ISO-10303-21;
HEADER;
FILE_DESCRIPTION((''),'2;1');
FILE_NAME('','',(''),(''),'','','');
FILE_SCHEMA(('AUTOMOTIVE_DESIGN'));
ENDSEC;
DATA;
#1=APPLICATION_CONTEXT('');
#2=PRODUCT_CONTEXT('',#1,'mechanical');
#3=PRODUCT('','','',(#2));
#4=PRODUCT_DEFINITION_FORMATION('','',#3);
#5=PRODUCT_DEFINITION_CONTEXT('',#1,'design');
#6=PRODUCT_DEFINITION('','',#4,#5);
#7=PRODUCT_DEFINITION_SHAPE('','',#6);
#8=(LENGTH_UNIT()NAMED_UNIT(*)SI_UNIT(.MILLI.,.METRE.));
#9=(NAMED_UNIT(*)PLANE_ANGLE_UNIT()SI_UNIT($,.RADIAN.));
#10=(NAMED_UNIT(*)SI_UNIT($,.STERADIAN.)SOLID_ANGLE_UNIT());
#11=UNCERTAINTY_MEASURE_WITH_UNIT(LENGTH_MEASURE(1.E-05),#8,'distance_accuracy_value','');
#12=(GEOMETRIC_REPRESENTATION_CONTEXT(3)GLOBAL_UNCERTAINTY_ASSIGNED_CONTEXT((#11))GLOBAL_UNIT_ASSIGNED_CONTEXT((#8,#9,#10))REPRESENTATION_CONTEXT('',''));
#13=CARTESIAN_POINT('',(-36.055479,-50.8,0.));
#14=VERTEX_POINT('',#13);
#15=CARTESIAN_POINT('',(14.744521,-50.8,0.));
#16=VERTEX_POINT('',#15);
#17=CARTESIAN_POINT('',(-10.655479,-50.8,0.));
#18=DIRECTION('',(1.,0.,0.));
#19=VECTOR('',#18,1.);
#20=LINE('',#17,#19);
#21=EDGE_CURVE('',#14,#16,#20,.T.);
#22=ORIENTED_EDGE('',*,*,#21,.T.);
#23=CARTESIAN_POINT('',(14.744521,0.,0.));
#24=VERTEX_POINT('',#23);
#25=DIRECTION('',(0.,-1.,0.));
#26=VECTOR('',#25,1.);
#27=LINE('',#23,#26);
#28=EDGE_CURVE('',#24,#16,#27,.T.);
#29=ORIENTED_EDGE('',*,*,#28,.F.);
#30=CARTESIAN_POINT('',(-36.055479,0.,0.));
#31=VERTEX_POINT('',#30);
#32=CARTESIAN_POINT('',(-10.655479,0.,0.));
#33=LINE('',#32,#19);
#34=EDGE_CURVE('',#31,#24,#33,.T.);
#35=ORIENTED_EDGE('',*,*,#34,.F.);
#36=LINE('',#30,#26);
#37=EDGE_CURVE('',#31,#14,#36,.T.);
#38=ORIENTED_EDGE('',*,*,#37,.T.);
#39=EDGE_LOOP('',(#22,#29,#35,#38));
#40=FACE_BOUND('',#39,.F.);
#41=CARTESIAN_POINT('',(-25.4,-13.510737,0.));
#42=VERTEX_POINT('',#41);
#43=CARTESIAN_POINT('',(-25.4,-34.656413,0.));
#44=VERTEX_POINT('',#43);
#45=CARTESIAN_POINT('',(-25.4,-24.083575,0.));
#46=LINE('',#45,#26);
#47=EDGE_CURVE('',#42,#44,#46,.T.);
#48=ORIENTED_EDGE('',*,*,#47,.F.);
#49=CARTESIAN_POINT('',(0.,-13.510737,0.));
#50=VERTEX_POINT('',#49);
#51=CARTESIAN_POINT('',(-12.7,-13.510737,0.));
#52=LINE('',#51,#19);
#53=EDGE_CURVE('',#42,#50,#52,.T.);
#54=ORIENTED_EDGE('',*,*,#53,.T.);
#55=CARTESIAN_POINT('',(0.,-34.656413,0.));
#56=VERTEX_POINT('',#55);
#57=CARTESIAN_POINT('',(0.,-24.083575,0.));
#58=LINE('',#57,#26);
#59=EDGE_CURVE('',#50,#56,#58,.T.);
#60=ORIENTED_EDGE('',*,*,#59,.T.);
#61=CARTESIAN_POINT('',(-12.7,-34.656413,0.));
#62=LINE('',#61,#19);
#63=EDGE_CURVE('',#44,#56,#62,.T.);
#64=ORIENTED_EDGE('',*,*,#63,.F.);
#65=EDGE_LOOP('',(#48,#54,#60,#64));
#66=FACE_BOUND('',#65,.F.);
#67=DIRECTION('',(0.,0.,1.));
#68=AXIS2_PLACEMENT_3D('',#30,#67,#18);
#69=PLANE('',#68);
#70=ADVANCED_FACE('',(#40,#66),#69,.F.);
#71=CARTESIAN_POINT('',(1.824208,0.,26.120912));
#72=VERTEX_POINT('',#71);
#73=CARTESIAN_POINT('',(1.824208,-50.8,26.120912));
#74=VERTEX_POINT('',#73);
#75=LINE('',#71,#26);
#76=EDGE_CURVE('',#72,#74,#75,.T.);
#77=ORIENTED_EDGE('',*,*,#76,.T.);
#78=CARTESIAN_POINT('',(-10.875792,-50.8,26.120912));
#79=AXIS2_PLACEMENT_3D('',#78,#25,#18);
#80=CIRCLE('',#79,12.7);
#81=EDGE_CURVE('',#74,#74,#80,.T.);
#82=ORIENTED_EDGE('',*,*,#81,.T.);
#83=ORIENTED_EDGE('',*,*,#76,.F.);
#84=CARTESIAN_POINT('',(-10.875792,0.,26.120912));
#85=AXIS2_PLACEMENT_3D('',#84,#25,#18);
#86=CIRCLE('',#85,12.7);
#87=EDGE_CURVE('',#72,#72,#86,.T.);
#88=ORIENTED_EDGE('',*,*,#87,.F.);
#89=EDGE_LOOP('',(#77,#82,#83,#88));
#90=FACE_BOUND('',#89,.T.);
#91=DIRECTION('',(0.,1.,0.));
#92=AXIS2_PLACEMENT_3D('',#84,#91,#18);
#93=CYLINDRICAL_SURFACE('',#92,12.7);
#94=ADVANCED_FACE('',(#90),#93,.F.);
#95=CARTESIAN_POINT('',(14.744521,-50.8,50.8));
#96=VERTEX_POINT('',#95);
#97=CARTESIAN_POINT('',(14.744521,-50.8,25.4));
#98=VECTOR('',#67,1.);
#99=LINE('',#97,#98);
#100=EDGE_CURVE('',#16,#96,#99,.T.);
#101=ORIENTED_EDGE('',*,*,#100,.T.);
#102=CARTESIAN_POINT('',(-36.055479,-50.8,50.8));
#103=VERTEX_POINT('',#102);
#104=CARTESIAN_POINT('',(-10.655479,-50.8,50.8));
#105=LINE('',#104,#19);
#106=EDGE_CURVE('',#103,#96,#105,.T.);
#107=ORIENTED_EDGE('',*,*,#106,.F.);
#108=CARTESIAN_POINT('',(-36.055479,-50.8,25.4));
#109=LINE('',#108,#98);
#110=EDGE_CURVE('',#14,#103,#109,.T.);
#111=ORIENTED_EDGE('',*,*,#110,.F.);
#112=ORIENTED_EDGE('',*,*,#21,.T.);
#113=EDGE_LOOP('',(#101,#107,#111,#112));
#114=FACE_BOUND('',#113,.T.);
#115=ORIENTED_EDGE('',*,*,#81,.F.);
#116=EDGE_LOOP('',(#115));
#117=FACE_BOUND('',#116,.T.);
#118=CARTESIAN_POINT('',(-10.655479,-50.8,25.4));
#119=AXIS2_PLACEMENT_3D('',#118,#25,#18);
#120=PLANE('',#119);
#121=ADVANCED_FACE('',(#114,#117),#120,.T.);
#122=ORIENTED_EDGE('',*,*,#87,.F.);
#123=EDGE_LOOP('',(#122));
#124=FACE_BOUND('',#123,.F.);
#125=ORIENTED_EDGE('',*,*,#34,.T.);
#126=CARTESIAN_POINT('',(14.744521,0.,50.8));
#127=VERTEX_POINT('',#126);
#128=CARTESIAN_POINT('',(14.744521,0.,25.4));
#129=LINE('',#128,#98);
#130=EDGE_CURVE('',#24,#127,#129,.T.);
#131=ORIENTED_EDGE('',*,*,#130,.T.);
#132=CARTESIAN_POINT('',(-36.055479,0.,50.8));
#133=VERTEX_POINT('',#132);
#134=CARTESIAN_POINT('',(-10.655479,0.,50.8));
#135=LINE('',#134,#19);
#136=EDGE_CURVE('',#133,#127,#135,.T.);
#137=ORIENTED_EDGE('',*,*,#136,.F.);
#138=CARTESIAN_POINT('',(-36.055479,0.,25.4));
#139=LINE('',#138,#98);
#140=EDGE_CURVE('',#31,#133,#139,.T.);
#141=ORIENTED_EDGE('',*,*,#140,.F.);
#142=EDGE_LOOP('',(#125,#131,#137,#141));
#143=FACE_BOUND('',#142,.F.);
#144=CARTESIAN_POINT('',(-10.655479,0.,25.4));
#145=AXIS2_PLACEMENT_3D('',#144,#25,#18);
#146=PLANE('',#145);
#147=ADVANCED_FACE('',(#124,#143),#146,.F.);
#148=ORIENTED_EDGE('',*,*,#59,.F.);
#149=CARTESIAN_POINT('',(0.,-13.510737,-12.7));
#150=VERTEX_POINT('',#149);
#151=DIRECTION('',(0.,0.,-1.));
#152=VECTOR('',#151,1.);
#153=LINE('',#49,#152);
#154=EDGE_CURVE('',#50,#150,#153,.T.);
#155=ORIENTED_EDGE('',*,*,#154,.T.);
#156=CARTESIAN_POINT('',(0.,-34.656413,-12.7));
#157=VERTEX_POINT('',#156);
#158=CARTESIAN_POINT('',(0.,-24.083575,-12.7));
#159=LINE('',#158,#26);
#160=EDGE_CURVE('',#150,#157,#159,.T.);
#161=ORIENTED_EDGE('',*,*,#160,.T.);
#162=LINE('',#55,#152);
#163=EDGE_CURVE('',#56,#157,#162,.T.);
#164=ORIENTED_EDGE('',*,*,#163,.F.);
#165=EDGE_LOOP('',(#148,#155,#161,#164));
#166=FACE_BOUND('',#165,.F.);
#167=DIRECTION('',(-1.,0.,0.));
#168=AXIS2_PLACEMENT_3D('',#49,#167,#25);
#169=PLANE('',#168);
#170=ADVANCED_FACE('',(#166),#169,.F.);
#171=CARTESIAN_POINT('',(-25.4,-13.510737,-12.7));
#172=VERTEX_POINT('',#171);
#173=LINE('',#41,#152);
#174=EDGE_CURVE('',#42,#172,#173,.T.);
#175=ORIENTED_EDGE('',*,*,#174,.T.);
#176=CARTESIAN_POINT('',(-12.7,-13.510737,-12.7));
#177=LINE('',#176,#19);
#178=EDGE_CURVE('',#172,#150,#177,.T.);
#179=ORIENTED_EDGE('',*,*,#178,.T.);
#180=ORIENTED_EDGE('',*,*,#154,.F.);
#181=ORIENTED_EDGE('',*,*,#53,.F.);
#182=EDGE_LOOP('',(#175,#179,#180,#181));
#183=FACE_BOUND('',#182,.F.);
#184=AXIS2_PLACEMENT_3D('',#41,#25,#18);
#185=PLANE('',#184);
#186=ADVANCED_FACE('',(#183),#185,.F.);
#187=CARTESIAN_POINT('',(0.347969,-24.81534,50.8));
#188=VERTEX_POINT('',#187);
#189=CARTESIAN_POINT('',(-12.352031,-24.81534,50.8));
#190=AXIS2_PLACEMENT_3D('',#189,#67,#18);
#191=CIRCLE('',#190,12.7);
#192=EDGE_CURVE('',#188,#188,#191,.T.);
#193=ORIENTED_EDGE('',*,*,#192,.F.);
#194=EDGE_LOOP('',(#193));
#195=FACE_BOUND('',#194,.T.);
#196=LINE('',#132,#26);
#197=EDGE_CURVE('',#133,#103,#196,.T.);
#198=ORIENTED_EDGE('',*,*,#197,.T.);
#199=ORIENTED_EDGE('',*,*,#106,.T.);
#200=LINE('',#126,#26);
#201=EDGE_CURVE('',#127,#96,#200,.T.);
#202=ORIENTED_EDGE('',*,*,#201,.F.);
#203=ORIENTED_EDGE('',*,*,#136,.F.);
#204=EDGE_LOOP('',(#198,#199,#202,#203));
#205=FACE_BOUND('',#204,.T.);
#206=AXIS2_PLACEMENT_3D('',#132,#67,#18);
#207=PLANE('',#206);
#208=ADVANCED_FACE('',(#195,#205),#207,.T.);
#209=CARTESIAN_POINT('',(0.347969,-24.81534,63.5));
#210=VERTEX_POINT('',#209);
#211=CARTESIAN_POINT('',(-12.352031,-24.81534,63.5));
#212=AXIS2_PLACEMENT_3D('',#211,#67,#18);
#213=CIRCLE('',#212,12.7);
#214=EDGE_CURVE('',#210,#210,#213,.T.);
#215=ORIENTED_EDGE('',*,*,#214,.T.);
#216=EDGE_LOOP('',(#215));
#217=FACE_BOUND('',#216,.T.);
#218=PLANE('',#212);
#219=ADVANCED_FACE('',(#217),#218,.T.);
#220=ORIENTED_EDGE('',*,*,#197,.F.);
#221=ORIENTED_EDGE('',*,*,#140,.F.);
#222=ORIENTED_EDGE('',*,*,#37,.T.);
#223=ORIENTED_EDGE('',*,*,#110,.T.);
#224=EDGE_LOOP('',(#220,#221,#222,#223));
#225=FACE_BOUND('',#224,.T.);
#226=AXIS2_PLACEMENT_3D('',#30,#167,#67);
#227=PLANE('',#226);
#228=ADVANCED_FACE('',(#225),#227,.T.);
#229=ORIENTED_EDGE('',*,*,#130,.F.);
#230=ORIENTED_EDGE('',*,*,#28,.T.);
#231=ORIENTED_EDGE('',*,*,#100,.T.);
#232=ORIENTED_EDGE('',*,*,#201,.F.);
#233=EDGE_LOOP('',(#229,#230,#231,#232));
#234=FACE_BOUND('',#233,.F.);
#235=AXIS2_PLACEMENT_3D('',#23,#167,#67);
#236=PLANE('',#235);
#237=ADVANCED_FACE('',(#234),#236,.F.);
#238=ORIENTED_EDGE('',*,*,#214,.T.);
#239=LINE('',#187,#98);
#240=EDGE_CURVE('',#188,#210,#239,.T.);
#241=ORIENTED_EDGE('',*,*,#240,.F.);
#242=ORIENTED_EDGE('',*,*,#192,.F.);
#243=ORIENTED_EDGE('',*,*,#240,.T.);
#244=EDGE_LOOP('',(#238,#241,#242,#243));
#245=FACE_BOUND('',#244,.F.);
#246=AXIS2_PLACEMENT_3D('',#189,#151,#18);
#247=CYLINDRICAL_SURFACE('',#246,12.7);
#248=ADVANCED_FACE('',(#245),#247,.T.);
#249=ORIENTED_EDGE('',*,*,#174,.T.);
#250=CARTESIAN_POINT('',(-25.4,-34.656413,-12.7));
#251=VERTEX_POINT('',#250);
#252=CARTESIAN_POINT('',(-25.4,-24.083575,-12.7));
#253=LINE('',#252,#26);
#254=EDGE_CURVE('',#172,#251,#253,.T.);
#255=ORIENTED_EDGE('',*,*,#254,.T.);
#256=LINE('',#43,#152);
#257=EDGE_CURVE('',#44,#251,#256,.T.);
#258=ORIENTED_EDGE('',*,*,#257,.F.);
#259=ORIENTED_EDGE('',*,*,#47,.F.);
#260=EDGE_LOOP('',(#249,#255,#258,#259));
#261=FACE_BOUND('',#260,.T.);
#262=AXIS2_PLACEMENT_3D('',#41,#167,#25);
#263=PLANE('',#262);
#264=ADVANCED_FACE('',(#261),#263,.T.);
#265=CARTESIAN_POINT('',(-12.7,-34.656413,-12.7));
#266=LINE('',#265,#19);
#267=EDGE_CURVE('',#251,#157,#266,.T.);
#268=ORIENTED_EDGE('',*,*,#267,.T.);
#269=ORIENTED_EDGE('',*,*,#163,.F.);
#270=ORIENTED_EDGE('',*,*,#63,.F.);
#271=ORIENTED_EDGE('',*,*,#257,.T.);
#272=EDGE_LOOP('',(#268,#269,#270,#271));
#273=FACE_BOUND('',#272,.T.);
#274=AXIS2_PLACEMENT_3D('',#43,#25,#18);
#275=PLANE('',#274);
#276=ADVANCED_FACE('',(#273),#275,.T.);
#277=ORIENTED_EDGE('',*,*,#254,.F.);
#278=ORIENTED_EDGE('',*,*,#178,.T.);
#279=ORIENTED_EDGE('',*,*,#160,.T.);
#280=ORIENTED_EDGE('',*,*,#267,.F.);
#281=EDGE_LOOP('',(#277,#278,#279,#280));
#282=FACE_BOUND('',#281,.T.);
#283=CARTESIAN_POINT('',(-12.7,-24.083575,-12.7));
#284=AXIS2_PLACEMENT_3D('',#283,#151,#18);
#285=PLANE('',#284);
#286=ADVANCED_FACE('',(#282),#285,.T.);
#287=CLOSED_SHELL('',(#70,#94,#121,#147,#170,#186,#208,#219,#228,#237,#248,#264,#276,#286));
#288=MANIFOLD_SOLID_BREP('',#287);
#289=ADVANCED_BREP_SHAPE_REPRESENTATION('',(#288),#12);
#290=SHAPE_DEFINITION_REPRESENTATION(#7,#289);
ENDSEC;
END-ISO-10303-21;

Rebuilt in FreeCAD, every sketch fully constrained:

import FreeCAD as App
import Part
import Sketcher
Q = App.Units.Quantity


def add_polygon(sketch, points):
    """Adds a closed chain of lines whose ends are joined by coincident constraints."""
    first, n = sketch.GeometryCount, len(points)
    for a, b in zip(points, points[1:] + points[:1]):
        sketch.addGeometry(Part.LineSegment(App.Vector(*a, 0), App.Vector(*b, 0)), False)
    for i in range(n):
        sketch.addConstraint(Sketcher.Constraint("Coincident", first + i, 2, first + (i + 1) % n, 1))

doc = App.newDocument("Part")
params = doc.addObject("Spreadsheet::Sheet", "Params")
for row, (alias, value) in enumerate([
    ("sketch1_diameter", "1 in"),
    ("sketch1_width", "2 in"),
    ("pad1_length", "2 in"),
    ("sketch2_diameter", "1 in"),
    ("pad2_length", "0.5 in"),
    ("sketch3_width", "1 in"),
    ("pad3_length", "0.5 in"),
], start=1):
    params.set(f"A{row}", alias)
    params.set(f"B{row}", "=" + value)
    params.setAlias(f"B{row}", alias)

body = doc.addObject("PartDesign::Body", "Body")

sketch1 = doc.addObject("Sketcher::SketchObject", "Sketch")
body.addObject(sketch1)
sketch1.AttachmentSupport = (doc.XZ_Plane, [""])
sketch1.MapMode = "FlatFace"
add_polygon(sketch1, [(-36, 51), (-36, 0), (15, 0), (15, 51)])
sketch1.addGeometry(Part.Circle(App.Vector(-11, 26, 0), App.Vector(0, 0, 1), 13), False)
sketch1.addConstraint([
    Sketcher.Constraint("Vertical", 0),
    Sketcher.Constraint("Horizontal", 1),
    Sketcher.Constraint("Vertical", 2),
    Sketcher.Constraint("Horizontal", 3),
    Sketcher.Constraint("PointOnObject", 0, 2, -1),
    Sketcher.Constraint("Equal", 3, 0),
    Sketcher.Constraint("Diameter", 4, Q("1 in")),
    Sketcher.Constraint("DistanceX", 1, 1, 1, 2, Q("2 in")),
    Sketcher.Constraint("DistanceX", 0, 2, -1, 1, 36.055479),
    Sketcher.Constraint("DistanceX", 4, 3, -1, 1, 10.875792),
    Sketcher.Constraint("DistanceY", -1, 1, 4, 3, 26.120912),
])
sketch1.setExpression("Constraints[10]", "Params.sketch1_diameter")
sketch1.setExpression("Constraints[11]", "Params.sketch1_width")
pad1 = doc.addObject("PartDesign::Pad", "Pad")
body.addObject(pad1)
pad1.Profile = sketch1
pad1.setExpression("Length", "Params.pad1_length")

sketch2 = doc.addObject("Sketcher::SketchObject", "Sketch001")
body.addObject(sketch2)
sketch2.AttachmentSupport = (doc.XY_Plane, [""])
sketch2.MapMode = "FlatFace"
sketch2.AttachmentOffset = App.Placement(App.Vector(0, 0, 2 * 25.4), App.Rotation())
sketch2.addGeometry(Part.Circle(App.Vector(-12, -25, 0), App.Vector(0, 0, 1), 13), False)
sketch2.addConstraint([
    Sketcher.Constraint("Diameter", 0, Q("1 in")),
    Sketcher.Constraint("DistanceX", 0, 3, -1, 1, 12.352031),
    Sketcher.Constraint("DistanceY", 0, 3, -1, 1, 24.81534),
])
sketch2.setExpression("Constraints[0]", "Params.sketch2_diameter")
pad2 = doc.addObject("PartDesign::Pad", "Pad001")
body.addObject(pad2)
pad2.Profile = sketch2
pad2.setExpression("Length", "Params.pad2_length")

sketch3 = doc.addObject("Sketcher::SketchObject", "Sketch002")
body.addObject(sketch3)
sketch3.AttachmentSupport = (doc.XY_Plane, [""])
sketch3.MapMode = "FlatFace"
add_polygon(sketch3, [(-25, -35), (-25, -14), (0, -14), (0, -35)])
sketch3.addConstraint([
    Sketcher.Constraint("Vertical", 0),
    Sketcher.Constraint("Horizontal", 1),
    Sketcher.Constraint("Vertical", 2),
    Sketcher.Constraint("Horizontal", 3),
    Sketcher.Constraint("PointOnObject", 1, 2, -2),
    Sketcher.Constraint("DistanceX", 1, 1, 1, 2, Q("1 in")),
    Sketcher.Constraint("DistanceY", 0, 1, 0, 2, 21.145677),
    Sketcher.Constraint("DistanceY", 0, 2, -1, 1, 13.510737),
])
sketch3.setExpression("Constraints[9]", "Params.sketch3_width")
pad3 = doc.addObject("PartDesign::Pad", "Pad002")
body.addObject(pad3)
pad3.Profile = sketch3
pad3.setExpression("Length", "Params.pad3_length")
pad3.Reversed = True

doc.recompute()
